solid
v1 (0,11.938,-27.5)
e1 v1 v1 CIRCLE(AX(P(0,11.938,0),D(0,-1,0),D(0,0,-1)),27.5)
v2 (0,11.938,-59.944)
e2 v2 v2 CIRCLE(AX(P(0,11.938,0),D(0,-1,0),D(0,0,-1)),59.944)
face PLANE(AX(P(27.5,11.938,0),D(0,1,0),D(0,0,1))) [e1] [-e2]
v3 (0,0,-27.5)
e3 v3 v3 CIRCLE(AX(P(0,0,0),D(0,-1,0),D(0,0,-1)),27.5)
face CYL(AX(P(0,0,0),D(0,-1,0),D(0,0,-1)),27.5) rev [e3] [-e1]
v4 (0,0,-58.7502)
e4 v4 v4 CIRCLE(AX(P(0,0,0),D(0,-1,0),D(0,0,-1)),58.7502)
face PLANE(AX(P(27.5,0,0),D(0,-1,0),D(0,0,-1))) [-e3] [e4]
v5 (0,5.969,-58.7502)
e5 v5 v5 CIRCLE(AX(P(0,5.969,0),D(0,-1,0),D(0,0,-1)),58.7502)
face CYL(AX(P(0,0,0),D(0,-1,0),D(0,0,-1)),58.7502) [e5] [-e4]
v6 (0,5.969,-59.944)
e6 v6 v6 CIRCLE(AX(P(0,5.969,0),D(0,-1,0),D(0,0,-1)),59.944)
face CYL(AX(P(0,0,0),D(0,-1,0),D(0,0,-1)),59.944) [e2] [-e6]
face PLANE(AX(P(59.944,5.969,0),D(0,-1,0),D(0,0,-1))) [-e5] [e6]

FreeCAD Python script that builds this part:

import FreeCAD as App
import Part
import Sketcher

V = App.Vector
Q = App.Units.Quantity

doc = App.newDocument("Part")
body = doc.addObject("PartDesign::Body", "Body")

sketch1 = body.newObject("Sketcher::SketchObject", "Sketch")
sketch1.AttachmentSupport = (doc.getObject("XY_Plane"), [""])
sketch1.MapMode = "FlatFace"
sketch1.addGeometry([
    Part.LineSegment(V(59.9, 11.9, 0), V(27.5, 11.9, 0)),
    Part.LineSegment(V(27.5, 11.9, 0), V(27.5, 0, 0)),
    Part.LineSegment(V(27.5, 0, 0), V(58.8, 0, 0)),
    Part.LineSegment(V(58.8, 0, 0), V(58.8, 6, 0)),
    Part.LineSegment(V(58.8, 6, 0), V(59.9, 6, 0)),
    Part.LineSegment(V(59.9, 6, 0), V(59.9, 11.9, 0)),
], False)
sketch1.addConstraint([
    Sketcher.Constraint("Coincident", 0, 2, 1, 1),
    Sketcher.Constraint("Coincident", 1, 2, 2, 1),
    Sketcher.Constraint("Coincident", 2, 2, 3, 1),
    Sketcher.Constraint("Coincident", 3, 2, 4, 1),
    Sketcher.Constraint("Coincident", 4, 2, 5, 1),
    Sketcher.Constraint("Coincident", 5, 2, 0, 1),
    Sketcher.Constraint("Horizontal", 0),
    Sketcher.Constraint("Vertical", 1),
    Sketcher.Constraint("Horizontal", 2),
    Sketcher.Constraint("Vertical", 3),
    Sketcher.Constraint("Horizontal", 4),
    Sketcher.Constraint("Vertical", 5),
    Sketcher.Constraint("PointOnObject", 1, 2, -1),
    Sketcher.Constraint("Equal", 3, 5),
    Sketcher.Constraint("DistanceY", 1, 2, 1, 1, Q("0.47 in")),
    Sketcher.Constraint("DistanceX", 4, 1, 4, 2, Q("0.047 in")),
    Sketcher.Constraint("DistanceX", -1, 1, 4, 2, Q("2.36 in")),
    Sketcher.Constraint("DistanceX", 0, 2, 0, 1, 32.444),
])
revolution = body.newObject("PartDesign::Revolution", "Revolution")
revolution.Profile = sketch1
revolution.ReferenceAxis = (sketch1, ["V_Axis"])
revolution.Angle = 360

doc.recompute()
